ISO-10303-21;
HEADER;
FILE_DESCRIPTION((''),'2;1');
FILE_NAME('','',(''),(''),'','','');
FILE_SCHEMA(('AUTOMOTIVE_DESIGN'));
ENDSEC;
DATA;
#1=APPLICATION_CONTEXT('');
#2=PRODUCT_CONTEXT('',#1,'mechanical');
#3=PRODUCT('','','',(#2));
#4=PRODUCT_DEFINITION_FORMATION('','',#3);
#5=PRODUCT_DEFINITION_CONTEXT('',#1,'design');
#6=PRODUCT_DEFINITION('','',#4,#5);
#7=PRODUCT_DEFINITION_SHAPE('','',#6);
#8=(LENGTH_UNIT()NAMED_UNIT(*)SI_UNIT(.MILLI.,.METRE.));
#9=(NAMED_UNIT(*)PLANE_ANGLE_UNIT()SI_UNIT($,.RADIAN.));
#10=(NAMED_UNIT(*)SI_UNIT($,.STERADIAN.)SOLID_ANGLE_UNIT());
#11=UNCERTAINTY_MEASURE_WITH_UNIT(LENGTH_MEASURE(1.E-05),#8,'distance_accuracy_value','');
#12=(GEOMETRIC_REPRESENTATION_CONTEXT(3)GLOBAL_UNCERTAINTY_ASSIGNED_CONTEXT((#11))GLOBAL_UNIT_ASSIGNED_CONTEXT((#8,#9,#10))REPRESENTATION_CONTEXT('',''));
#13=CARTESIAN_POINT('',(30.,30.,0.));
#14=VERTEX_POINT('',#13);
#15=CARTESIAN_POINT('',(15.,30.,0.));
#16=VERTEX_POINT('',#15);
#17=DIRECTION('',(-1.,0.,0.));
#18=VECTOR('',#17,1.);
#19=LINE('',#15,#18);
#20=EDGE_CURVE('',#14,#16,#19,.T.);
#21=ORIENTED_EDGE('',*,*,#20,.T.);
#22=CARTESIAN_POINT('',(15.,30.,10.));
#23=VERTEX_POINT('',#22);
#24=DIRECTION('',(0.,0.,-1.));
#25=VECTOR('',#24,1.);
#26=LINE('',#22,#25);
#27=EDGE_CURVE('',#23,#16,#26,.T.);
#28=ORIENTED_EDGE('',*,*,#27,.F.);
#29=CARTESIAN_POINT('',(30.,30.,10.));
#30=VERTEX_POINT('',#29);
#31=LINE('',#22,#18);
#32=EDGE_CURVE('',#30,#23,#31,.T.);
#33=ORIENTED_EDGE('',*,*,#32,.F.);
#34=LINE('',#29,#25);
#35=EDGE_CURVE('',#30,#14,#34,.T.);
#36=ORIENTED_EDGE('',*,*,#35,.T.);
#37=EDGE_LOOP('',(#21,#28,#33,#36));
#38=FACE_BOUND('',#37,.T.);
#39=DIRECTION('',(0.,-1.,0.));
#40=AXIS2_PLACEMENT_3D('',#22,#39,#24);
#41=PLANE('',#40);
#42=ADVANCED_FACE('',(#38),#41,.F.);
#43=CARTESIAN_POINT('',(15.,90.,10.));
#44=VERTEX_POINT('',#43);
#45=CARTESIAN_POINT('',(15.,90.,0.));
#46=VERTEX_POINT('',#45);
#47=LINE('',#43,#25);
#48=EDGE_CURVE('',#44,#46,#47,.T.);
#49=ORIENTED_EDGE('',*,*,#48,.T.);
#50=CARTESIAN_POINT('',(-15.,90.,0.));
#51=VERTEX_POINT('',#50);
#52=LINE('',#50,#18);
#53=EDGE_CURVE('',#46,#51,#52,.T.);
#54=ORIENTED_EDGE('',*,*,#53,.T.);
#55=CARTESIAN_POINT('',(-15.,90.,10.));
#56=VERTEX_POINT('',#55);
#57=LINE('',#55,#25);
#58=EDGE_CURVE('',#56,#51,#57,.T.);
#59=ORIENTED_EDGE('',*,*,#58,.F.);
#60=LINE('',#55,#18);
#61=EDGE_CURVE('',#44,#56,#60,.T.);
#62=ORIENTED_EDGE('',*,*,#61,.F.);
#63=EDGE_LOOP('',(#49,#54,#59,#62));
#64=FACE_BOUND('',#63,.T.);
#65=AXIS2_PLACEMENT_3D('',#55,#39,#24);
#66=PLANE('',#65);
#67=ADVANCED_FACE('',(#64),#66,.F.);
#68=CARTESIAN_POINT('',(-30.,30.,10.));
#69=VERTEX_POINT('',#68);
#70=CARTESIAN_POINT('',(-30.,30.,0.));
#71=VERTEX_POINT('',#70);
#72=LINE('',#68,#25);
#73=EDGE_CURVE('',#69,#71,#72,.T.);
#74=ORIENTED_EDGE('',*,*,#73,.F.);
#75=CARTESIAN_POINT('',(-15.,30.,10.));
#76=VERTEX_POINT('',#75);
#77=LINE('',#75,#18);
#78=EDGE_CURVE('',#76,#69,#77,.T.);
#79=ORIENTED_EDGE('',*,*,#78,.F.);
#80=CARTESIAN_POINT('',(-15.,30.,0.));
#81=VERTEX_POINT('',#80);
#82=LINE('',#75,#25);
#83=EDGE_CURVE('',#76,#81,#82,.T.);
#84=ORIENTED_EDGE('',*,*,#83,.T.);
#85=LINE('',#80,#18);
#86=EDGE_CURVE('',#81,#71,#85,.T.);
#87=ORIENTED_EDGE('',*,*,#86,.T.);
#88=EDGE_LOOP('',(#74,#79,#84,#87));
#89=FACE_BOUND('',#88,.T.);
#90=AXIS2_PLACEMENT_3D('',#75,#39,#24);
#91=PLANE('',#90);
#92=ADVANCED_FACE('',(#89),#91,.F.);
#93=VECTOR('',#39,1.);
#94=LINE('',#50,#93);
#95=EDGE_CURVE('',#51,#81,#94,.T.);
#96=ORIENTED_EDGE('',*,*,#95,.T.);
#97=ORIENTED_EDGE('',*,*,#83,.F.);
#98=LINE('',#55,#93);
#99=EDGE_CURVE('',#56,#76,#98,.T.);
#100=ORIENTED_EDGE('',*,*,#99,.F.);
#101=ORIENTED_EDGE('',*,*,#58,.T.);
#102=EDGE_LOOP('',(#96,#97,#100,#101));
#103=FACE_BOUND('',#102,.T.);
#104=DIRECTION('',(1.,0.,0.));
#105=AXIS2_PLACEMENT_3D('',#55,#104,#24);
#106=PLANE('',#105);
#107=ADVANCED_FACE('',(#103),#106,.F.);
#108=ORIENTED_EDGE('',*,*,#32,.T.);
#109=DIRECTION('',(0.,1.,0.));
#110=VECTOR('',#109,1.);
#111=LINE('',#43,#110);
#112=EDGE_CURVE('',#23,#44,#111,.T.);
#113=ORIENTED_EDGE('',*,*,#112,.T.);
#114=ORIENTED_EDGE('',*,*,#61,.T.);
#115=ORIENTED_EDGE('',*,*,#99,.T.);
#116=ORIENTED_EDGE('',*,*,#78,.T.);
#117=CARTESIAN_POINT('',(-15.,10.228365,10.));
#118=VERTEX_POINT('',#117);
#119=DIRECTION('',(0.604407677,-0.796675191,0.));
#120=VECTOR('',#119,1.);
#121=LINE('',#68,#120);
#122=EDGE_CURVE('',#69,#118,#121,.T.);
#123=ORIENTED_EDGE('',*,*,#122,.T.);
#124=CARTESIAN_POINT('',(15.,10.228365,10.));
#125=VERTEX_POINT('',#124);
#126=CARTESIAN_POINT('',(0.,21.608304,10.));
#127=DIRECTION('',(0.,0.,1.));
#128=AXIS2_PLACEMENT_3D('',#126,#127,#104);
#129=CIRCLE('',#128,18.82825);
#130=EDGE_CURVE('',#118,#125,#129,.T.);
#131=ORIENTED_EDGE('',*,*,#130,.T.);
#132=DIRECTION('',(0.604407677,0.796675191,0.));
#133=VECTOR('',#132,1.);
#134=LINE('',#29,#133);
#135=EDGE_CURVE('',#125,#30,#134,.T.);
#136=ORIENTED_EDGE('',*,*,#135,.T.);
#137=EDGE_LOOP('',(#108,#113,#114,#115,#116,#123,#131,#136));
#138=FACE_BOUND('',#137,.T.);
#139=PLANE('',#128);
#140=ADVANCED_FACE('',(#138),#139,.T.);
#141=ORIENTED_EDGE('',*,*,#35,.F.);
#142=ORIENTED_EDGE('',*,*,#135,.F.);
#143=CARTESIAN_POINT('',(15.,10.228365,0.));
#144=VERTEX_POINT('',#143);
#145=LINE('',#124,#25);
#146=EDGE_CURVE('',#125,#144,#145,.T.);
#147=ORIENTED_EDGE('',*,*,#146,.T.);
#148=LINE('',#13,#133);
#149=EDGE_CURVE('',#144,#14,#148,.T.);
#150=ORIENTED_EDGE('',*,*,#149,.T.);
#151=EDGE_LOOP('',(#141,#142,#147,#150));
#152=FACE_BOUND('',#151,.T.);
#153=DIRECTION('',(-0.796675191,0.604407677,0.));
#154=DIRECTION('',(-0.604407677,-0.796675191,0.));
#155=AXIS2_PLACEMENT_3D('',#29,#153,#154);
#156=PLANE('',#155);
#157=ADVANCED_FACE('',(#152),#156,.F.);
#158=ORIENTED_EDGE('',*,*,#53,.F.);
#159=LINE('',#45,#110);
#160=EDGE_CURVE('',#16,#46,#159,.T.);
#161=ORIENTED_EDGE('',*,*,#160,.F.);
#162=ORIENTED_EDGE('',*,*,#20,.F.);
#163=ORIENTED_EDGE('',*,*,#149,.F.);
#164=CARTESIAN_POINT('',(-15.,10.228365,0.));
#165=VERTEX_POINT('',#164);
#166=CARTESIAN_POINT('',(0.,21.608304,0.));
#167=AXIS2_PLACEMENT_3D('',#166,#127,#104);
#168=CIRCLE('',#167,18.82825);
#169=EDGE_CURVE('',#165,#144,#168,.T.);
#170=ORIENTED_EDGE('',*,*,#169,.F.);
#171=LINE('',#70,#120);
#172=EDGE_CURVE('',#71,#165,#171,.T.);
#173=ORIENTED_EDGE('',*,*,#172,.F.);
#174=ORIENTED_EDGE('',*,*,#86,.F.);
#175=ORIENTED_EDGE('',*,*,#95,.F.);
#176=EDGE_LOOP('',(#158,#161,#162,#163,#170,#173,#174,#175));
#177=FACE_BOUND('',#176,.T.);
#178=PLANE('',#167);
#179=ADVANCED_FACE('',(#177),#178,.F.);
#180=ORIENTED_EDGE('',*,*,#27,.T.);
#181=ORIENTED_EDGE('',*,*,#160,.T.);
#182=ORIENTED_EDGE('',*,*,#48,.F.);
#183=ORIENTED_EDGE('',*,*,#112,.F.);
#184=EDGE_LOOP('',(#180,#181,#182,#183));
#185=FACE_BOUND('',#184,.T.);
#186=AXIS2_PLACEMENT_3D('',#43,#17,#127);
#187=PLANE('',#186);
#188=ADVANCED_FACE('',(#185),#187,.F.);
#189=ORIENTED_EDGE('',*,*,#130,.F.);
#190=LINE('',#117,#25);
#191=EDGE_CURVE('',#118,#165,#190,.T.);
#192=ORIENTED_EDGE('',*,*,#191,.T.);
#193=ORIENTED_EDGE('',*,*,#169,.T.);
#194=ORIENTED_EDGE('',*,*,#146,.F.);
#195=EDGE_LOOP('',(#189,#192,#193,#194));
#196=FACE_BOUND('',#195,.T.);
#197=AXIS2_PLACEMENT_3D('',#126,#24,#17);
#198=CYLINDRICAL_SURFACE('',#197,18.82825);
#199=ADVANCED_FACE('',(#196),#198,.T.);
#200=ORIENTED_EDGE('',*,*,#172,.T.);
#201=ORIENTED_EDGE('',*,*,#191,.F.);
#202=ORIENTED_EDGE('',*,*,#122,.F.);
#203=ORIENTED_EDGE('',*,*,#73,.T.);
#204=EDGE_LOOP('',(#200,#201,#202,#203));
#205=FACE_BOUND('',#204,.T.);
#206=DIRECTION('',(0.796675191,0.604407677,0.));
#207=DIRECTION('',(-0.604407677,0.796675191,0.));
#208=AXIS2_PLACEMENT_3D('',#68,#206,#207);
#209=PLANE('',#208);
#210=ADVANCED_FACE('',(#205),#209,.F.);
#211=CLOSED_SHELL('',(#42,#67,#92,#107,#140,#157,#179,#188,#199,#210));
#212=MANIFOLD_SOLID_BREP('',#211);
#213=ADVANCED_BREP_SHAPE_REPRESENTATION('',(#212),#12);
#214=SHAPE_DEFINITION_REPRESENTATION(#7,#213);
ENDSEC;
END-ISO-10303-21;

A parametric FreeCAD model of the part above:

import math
import FreeCAD as App
import Part
import Sketcher

V = App.Vector

doc = App.newDocument("Part")
body = doc.addObject("PartDesign::Body", "Body")

# Sketch on XY plane
sketch1 = doc.addObject("Sketcher::SketchObject", "Sketch")
body.addObject(sketch1)
sketch1.AttachmentSupport = (doc.XY_Plane, [""])
sketch1.MapMode = "FlatFace"
sketch1.addGeometry([
    Part.LineSegment(V(15, 90, 0), V(-15, 90, 0)),  # 0
    Part.LineSegment(V(-15, 90, 0), V(-15, 30, 0)),  # 1
    Part.LineSegment(V(-15, 30, 0), V(-30, 30, 0)),  # 2
    Part.LineSegment(V(-30, 30, 0), V(-15, 10, 0)),  # 3
    Part.ArcOfCircle(Part.Circle(V(0, 22, 0), V(0, 0, 1), 19), math.radians(-143), math.radians(-37)),  # 4
    Part.LineSegment(V(15, 10, 0), V(30, 30, 0)),  # 5
    Part.LineSegment(V(30, 30, 0), V(15, 30, 0)),  # 6
    Part.LineSegment(V(15, 30, 0), V(15, 90, 0)),  # 7
], False)
sketch1.addConstraint([
    Sketcher.Constraint("Coincident", 0, 2, 1, 1),
    Sketcher.Constraint("Coincident", 1, 2, 2, 1),
    Sketcher.Constraint("Coincident", 2, 2, 3, 1),
    Sketcher.Constraint("Tangent", 3, 2, 4, 1),
    Sketcher.Constraint("Tangent", 4, 2, 5, 1),
    Sketcher.Constraint("Coincident", 5, 2, 6, 1),
    Sketcher.Constraint("Coincident", 6, 2, 7, 1),
    Sketcher.Constraint("Coincident", 7, 2, 0, 1),
    Sketcher.Constraint("Horizontal", 0),
    Sketcher.Constraint("Vertical", 1),
    Sketcher.Constraint("Horizontal", 2),
    Sketcher.Constraint("Horizontal", 6),
    Sketcher.Constraint("Vertical", 7),
    Sketcher.Constraint("Symmetric", 3, 2, 4, 2, -2),
    Sketcher.Constraint("Symmetric", 1, 2, 6, 2, -2),
    Sketcher.Constraint("Vertical", 1, 2, 3, 2),
    Sketcher.Constraint("DistanceX", 0, 2, 0, 1, 30.0),
    Sketcher.Constraint("DistanceX", 2, 2, 2, 1, 15.0),
    Sketcher.Constraint("DistanceY", 1, 2, 1, 1, 60.0),
    Sketcher.Constraint("DistanceY", -1, 1, 0, 2, 90.0),
    Sketcher.Constraint("Radius", 4, 18.82825),
])
pad1 = doc.addObject("PartDesign::Pad", "Pad")
body.addObject(pad1)
pad1.Profile = sketch1
pad1.Length = 10

doc.recompute()
